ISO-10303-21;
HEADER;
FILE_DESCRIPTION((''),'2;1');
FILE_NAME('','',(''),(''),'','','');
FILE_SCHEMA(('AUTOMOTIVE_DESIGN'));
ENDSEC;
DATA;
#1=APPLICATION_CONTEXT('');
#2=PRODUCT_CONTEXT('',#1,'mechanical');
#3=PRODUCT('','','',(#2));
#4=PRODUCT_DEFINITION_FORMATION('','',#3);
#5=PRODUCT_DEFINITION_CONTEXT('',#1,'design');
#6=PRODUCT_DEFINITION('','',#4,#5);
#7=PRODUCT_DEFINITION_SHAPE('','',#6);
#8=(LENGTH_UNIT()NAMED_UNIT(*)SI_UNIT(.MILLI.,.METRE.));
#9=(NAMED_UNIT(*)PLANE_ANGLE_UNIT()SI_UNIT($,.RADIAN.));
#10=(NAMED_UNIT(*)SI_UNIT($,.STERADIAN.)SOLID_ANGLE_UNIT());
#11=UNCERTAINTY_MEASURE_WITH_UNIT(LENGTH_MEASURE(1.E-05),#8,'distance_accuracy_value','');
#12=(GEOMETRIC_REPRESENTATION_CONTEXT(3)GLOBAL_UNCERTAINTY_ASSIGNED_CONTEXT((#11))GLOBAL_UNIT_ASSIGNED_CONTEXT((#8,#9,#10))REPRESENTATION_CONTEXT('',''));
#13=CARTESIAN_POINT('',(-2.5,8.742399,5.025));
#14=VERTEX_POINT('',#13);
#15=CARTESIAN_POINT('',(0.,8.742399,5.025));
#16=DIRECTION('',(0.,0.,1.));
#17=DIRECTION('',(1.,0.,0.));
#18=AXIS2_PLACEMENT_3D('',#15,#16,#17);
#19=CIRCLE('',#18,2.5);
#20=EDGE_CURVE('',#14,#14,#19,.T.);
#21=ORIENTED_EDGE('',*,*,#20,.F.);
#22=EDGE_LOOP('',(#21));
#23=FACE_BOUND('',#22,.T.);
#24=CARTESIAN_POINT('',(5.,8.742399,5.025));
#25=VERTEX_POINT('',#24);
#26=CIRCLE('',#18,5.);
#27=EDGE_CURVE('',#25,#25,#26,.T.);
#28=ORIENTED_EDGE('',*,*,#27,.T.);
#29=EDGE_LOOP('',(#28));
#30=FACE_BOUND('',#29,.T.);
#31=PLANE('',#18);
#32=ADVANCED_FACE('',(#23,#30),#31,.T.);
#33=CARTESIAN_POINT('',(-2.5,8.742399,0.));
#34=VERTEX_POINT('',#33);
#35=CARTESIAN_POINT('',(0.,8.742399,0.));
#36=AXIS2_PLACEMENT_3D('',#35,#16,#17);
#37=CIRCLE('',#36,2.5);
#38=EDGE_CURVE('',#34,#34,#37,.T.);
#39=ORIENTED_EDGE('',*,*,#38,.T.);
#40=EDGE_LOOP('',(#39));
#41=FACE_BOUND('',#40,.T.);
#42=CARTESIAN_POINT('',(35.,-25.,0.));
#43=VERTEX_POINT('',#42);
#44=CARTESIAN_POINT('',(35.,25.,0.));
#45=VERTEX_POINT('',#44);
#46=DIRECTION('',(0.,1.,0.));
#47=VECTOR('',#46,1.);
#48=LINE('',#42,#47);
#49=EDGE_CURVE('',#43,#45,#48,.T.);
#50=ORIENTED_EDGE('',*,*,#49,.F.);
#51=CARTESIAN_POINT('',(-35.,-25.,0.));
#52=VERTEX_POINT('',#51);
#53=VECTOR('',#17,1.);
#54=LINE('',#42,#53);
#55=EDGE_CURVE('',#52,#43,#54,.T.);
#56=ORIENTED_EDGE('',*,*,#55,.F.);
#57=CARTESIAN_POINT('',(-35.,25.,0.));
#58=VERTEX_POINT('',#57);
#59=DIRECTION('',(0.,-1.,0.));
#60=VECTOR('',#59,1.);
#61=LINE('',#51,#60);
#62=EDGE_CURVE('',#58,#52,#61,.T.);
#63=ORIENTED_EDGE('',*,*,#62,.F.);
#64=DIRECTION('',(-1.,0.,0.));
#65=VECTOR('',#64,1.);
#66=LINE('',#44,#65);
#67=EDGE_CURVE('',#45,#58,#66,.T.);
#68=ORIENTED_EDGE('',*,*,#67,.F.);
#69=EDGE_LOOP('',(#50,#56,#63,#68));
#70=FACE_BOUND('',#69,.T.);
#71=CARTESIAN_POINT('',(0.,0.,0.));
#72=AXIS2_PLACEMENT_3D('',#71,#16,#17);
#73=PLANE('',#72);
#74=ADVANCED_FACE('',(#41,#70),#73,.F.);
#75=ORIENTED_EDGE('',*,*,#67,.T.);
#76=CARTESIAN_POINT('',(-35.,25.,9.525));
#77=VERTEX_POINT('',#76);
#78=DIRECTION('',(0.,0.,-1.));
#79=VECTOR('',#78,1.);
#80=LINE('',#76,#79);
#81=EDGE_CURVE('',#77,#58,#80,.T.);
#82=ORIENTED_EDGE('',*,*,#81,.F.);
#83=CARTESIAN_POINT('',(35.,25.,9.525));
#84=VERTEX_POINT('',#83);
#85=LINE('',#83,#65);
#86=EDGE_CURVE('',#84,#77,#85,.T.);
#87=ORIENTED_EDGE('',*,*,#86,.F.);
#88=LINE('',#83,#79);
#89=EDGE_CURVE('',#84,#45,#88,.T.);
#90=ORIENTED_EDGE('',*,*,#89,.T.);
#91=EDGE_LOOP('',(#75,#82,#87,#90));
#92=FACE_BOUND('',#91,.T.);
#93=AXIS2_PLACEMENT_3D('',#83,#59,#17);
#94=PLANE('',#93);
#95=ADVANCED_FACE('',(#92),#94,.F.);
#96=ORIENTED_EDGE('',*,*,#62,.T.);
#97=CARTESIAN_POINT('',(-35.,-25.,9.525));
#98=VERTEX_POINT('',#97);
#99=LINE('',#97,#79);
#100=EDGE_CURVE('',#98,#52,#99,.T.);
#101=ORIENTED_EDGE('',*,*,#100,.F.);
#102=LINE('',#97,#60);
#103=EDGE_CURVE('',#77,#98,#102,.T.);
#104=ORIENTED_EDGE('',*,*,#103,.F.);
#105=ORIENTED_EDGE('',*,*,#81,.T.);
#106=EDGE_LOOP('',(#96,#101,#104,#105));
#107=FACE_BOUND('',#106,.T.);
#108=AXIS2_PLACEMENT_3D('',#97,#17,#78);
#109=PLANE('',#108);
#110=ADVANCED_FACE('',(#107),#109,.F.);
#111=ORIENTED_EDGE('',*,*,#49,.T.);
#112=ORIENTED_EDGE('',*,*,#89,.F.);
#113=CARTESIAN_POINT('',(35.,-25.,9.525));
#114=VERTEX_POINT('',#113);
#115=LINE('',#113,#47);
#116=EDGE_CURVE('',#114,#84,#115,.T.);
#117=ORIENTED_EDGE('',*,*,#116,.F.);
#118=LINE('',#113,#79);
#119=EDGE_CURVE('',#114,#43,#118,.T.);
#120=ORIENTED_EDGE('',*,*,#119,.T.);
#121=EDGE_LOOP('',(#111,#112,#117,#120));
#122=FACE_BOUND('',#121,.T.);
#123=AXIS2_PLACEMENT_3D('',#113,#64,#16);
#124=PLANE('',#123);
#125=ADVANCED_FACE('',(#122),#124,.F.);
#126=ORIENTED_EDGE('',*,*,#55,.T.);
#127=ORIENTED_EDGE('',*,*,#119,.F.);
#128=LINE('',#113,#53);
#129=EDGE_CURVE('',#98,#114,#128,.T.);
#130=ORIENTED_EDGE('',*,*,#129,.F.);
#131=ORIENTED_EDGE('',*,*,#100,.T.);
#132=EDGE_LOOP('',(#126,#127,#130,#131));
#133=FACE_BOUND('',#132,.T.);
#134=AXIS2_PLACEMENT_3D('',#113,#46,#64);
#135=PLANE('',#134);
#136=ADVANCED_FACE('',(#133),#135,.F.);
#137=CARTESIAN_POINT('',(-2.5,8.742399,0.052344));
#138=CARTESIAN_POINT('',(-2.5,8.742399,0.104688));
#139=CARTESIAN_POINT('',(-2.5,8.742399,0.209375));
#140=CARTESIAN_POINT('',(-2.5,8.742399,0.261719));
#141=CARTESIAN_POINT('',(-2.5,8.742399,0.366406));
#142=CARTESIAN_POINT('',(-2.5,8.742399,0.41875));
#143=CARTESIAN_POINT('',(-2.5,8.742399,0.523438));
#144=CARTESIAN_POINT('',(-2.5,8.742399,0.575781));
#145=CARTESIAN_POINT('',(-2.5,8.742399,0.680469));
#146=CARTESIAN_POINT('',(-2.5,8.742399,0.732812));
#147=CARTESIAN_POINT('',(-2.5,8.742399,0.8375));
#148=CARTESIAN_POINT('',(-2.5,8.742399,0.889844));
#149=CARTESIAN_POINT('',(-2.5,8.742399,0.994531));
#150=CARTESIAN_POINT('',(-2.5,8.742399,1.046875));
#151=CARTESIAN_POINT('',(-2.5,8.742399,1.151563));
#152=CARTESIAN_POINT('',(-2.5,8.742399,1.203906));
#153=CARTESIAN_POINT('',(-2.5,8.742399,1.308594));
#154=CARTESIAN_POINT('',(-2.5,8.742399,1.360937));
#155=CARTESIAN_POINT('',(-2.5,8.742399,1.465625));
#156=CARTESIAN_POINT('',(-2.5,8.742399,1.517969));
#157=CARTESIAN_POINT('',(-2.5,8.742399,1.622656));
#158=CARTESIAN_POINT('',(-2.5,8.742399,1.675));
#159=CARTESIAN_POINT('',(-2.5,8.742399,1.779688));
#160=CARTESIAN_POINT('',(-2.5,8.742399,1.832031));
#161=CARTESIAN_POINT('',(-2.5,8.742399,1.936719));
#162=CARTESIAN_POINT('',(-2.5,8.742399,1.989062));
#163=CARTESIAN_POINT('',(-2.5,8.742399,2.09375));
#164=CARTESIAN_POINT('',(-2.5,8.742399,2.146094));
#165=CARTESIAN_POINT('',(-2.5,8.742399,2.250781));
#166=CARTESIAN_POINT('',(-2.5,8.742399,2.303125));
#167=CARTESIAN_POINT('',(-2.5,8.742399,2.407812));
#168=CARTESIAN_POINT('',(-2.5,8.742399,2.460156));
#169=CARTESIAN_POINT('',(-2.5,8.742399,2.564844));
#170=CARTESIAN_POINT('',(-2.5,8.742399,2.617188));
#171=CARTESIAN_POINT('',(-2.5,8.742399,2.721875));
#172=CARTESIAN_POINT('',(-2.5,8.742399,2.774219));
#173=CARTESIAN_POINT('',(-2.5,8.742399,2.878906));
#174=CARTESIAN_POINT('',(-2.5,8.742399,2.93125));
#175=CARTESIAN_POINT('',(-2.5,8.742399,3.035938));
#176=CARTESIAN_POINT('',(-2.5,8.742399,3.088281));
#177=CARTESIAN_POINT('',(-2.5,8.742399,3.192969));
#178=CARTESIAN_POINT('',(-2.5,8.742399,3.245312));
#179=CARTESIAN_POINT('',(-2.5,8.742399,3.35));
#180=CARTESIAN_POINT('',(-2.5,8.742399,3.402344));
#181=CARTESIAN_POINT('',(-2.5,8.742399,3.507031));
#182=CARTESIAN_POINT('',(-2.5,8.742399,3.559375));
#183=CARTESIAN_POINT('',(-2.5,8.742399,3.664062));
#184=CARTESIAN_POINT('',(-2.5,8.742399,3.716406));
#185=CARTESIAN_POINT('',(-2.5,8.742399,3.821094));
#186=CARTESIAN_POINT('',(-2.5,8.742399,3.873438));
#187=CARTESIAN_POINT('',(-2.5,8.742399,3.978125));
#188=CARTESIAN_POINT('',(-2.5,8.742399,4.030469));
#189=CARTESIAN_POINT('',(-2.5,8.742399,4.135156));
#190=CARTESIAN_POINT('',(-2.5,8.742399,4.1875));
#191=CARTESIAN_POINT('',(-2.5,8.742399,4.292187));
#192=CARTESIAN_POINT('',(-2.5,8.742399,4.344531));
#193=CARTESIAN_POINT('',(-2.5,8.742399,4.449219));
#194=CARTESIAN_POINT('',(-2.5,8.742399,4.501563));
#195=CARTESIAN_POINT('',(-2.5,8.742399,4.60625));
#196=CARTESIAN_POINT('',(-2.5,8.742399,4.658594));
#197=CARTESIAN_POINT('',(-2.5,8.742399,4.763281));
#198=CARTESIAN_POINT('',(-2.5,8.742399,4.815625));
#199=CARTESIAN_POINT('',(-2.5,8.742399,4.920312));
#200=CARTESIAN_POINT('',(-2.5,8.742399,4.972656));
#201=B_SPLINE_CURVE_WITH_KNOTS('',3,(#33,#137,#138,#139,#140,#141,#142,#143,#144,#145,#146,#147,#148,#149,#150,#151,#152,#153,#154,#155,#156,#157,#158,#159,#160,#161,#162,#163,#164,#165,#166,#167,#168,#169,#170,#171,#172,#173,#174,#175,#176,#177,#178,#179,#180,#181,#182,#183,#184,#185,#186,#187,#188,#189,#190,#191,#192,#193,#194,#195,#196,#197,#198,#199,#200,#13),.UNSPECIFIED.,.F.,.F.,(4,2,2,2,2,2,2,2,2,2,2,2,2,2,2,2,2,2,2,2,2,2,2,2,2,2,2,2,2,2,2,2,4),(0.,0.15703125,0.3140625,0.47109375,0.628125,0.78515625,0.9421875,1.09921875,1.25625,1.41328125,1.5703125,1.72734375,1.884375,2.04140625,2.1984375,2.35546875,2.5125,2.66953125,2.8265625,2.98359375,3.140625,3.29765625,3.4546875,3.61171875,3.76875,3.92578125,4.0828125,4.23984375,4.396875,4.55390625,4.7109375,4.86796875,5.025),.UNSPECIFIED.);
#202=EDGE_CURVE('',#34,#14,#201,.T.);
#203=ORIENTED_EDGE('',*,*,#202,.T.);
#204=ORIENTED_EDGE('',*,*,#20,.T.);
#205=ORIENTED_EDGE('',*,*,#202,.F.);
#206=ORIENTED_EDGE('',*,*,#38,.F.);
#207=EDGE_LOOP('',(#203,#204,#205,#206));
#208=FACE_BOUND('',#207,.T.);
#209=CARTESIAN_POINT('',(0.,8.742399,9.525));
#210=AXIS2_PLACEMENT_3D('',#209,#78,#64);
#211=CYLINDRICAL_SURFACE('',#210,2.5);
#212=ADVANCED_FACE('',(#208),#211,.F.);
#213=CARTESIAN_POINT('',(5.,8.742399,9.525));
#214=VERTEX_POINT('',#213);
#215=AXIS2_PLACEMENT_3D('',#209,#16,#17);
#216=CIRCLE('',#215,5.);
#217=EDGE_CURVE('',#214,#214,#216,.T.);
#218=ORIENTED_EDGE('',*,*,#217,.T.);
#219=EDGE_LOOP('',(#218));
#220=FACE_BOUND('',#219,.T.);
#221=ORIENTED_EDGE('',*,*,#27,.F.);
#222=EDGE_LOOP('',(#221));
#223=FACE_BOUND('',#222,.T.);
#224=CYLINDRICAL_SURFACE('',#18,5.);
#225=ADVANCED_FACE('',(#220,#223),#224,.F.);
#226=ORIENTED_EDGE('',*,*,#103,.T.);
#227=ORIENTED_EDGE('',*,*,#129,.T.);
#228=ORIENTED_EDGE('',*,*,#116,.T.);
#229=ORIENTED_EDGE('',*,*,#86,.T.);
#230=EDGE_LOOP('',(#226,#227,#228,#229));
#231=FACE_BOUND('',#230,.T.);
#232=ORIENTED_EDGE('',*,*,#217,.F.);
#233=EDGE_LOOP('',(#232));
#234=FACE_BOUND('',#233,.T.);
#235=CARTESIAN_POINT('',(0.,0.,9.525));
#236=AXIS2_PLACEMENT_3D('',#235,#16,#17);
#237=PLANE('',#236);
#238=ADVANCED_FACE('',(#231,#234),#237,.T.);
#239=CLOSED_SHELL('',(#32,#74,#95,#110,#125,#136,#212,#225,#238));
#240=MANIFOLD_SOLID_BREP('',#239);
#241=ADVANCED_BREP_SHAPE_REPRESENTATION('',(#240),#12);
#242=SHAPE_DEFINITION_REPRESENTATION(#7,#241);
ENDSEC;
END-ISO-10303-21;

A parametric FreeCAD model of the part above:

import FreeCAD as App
import Part
import Sketcher


def add_polygon(sketch, points):
    """Adds a closed chain of lines whose ends are joined by coincident constraints."""
    first, n = sketch.GeometryCount, len(points)
    for a, b in zip(points, points[1:] + points[:1]):
        sketch.addGeometry(Part.LineSegment(App.Vector(*a, 0), App.Vector(*b, 0)), False)
    for i in range(n):
        sketch.addConstraint(Sketcher.Constraint("Coincident", first + i, 2, first + (i + 1) % n, 1))

doc = App.newDocument("Part")
body = doc.addObject("PartDesign::Body", "Body")

sketch1 = body.newObject("Sketcher::SketchObject", "Sketch")
sketch1.AttachmentSupport = (doc.getObject("XY_Plane"), [""])
sketch1.MapMode = "FlatFace"
add_polygon(sketch1, [(-35, 25), (-35, -25), (35, -25), (35, 25)])
sketch1.addGeometry(Part.Circle(App.Vector(0, 8.7, 0), App.Vector(0, 0, 1), 2.5), False)
sketch1.addConstraint(Sketcher.Constraint("Vertical", 0))
sketch1.addConstraint(Sketcher.Constraint("Horizontal", 1))
sketch1.addConstraint(Sketcher.Constraint("Vertical", 2))
sketch1.addConstraint(Sketcher.Constraint("Horizontal", 3))
sketch1.addConstraint(Sketcher.Constraint("Symmetric", 0, 2, 2, 2, -1, 1))
sketch1.addConstraint(Sketcher.Constraint("PointOnObject", 4, 3, -2))
sketch1.addConstraint(Sketcher.Constraint("Diameter", 4, 5.0))
sketch1.addConstraint(Sketcher.Constraint("DistanceX", 1, 1, 1, 2, 70.0))
sketch1.addConstraint(Sketcher.Constraint("DistanceY", 0, 2, 0, 1, 50.0))
sketch1.addConstraint(Sketcher.Constraint("DistanceY", -1, 1, 4, 3, 8.742399))
pad1 = body.newObject("PartDesign::Pad", "Pad")
pad1.Profile = sketch1
pad1.Length = 9.525

sketch2 = body.newObject("Sketcher::SketchObject", "Sketch001")
sketch2.AttachmentSupport = (doc.getObject("XY_Plane"), [""])
sketch2.MapMode = "FlatFace"
sketch2.AttachmentOffset = App.Placement(App.Vector(0, 0, 9.525), App.Rotation())
sketch2.addGeometry(Part.Circle(App.Vector(0, 9, 0), App.Vector(0, 0, 1), 5), False)
sketch2.addConstraint(Sketcher.Constraint("PointOnObject", 0, 3, -2))
sketch2.addConstraint(Sketcher.Constraint("Diameter", 0, 10.0))
sketch2.addConstraint(Sketcher.Constraint("DistanceY", -1, 1, 0, 3, 8.742399))
pocket1 = body.newObject("PartDesign::Pocket", "Pocket")
pocket1.Profile = sketch2
pocket1.Length = 4.5

doc.recompute()
